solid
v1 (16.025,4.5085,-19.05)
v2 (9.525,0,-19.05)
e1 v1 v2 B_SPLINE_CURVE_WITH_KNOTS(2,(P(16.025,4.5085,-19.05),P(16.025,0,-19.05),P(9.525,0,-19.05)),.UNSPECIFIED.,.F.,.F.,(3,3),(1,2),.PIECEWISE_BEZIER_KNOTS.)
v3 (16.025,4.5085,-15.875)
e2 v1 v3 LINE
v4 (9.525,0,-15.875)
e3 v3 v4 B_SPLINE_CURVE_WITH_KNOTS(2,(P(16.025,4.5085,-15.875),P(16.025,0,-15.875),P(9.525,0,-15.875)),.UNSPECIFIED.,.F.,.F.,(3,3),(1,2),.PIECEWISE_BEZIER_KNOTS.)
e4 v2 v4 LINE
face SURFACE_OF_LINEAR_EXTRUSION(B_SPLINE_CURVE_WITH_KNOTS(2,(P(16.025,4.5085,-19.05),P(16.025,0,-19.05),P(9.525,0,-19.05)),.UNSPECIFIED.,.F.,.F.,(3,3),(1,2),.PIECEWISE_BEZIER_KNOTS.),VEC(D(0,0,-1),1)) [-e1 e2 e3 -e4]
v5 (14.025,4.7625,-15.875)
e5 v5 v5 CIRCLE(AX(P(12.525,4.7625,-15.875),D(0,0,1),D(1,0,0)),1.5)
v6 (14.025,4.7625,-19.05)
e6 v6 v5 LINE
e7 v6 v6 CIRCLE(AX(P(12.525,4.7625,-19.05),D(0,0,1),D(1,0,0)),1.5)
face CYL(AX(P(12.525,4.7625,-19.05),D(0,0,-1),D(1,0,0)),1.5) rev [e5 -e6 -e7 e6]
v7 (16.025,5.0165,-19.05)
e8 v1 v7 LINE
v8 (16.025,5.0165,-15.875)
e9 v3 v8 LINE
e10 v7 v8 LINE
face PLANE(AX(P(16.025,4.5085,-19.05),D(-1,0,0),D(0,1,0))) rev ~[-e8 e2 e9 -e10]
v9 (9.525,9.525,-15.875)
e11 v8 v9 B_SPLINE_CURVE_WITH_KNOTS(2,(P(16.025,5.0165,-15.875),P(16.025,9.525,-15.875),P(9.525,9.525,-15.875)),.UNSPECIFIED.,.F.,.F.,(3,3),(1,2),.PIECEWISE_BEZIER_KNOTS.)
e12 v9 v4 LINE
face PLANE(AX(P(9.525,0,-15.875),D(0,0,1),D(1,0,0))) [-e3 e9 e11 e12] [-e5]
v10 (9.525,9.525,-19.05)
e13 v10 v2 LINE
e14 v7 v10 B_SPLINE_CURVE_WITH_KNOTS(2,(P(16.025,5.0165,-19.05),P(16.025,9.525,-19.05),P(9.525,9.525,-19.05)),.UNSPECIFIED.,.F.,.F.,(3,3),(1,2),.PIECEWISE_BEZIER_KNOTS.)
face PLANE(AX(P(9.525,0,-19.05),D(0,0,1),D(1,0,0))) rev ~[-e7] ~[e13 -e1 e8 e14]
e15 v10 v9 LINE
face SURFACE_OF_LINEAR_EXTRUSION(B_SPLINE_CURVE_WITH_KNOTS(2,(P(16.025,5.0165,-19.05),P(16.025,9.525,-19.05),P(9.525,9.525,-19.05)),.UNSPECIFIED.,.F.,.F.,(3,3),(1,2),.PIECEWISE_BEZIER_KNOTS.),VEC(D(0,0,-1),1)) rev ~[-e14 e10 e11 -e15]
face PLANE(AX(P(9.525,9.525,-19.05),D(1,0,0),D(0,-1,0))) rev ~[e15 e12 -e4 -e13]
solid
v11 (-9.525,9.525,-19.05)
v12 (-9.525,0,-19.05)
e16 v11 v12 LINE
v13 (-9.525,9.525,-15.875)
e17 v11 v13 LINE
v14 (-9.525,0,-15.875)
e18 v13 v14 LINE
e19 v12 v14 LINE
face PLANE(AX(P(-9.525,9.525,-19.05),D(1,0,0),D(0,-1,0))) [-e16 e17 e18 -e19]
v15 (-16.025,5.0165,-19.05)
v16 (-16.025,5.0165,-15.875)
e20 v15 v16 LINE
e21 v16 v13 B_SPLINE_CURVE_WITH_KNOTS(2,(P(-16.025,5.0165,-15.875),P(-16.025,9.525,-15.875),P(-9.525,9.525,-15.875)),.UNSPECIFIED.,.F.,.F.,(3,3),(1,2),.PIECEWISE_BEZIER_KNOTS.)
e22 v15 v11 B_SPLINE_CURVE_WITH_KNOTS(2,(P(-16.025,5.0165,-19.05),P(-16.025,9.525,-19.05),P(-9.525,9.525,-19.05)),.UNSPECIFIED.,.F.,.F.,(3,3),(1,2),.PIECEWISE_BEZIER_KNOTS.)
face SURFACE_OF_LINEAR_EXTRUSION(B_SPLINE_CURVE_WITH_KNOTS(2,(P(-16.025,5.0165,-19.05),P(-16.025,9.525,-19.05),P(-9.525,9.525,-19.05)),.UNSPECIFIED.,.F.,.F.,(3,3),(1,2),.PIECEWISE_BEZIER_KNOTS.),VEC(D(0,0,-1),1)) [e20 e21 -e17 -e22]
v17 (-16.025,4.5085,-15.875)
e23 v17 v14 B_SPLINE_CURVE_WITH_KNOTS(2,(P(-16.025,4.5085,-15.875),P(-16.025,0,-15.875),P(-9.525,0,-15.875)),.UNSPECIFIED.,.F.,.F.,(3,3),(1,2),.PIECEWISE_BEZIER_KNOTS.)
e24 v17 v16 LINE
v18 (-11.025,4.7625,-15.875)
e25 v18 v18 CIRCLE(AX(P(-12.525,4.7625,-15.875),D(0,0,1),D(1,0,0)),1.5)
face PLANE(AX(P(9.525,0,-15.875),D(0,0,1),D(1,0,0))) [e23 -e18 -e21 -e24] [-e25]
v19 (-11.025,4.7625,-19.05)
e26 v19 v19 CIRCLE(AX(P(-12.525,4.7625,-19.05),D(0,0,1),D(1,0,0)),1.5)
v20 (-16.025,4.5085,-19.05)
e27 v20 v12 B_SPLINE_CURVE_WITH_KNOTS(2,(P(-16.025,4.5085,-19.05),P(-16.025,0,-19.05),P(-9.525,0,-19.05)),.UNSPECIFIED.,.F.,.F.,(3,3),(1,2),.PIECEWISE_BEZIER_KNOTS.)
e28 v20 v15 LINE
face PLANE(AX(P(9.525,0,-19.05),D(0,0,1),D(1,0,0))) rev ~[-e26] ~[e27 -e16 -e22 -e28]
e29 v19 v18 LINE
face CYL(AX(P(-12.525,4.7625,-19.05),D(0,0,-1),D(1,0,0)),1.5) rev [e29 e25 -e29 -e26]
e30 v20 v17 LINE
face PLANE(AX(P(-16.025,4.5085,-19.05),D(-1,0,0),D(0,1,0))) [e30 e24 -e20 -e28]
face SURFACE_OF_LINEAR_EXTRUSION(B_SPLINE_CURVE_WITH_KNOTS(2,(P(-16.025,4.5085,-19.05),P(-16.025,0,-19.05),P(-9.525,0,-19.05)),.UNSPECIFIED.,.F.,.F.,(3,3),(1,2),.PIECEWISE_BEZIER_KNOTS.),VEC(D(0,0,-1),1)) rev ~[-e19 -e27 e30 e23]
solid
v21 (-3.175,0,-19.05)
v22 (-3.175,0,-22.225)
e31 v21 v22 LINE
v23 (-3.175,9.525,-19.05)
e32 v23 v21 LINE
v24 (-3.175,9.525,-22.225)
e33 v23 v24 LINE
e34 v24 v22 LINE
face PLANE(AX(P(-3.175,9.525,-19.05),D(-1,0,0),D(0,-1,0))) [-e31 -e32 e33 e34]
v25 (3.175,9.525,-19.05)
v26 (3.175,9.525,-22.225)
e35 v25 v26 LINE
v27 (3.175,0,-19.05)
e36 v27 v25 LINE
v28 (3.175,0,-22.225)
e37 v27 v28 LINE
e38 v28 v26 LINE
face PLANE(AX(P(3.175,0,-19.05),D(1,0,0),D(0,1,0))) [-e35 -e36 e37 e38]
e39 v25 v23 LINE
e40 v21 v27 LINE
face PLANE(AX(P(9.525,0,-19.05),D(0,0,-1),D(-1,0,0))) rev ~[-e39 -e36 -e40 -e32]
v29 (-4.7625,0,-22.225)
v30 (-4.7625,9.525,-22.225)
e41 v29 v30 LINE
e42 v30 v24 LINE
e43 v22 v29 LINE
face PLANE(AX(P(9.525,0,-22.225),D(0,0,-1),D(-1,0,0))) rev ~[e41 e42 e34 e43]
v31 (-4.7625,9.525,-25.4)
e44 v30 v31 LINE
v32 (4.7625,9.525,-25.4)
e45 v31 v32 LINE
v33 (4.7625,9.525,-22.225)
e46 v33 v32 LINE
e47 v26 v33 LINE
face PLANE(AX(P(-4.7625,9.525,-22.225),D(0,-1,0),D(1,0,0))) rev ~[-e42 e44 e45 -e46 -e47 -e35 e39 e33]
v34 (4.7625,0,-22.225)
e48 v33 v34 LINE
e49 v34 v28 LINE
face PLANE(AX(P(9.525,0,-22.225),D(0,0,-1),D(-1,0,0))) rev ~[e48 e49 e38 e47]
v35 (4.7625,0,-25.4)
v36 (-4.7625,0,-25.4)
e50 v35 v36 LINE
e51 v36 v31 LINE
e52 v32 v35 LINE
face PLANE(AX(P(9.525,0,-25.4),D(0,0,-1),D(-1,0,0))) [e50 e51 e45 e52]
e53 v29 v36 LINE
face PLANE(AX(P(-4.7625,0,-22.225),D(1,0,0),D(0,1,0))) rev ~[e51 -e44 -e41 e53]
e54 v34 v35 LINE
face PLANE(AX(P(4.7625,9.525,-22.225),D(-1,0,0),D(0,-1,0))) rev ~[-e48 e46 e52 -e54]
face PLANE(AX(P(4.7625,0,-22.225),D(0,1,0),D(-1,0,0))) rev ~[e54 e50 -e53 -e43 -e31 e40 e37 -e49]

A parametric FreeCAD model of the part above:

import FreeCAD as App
import Part
import Sketcher
Q = App.Units.Quantity

doc = App.newDocument("Part")
body = doc.addObject("PartDesign::Body", "Body")
body.AllowCompound = True

# Sketch on XY plane
sketch1 = body.newObject("Sketcher::SketchObject", "Sketch")
sketch1.AttachmentSupport = (doc.getObject("XY_Plane"), [""])
sketch1.MapMode = "FlatFace"
sketch1.AttachmentOffset = App.Placement(App.Vector(0, 0, -0.75 * 25.4), App.Rotation())
sketch1.addGeometry([
    Part.LineSegment(App.Vector(3.175, 0, 0), App.Vector(-3.175, 0, 0)),
    Part.LineSegment(App.Vector(-3.175, 0, 0), App.Vector(-3.175, 9.525, 0)),
    Part.LineSegment(App.Vector(-3.175, 9.525, 0), App.Vector(3.175, 9.525, 0)),
    Part.LineSegment(App.Vector(3.175, 9.525, 0), App.Vector(3.175, 0, 0)),
], False)
sketch1.addConstraint([
    Sketcher.Constraint("Coincident", 0, 2, 1, 1),
    Sketcher.Constraint("Coincident", 1, 2, 2, 1),
    Sketcher.Constraint("Coincident", 2, 2, 3, 1),
    Sketcher.Constraint("Coincident", 3, 2, 0, 1),
    Sketcher.Constraint("Horizontal", 0),
    Sketcher.Constraint("Vertical", 1),
    Sketcher.Constraint("Horizontal", 2),
    Sketcher.Constraint("Vertical", 3),
    Sketcher.Constraint("Symmetric", 0, 2, 3, 2, -1, 1),
    Sketcher.Constraint("DistanceX", 0, 2, 0, 1, Q("0.25 in")),
    Sketcher.Constraint("DistanceY", 1, 1, 1, 2, Q("0.375 in")),
])
pad1 = body.newObject("PartDesign::Pad", "Pad")
pad1.Profile = sketch1
pad1.Length = Q("0.125 in")
pad1.Reversed = True

# Sketch on XY plane
sketch2 = body.newObject("Sketcher::SketchObject", "Sketch001")
sketch2.AttachmentSupport = (doc.getObject("XY_Plane"), [""])
sketch2.MapMode = "FlatFace"
sketch2.AttachmentOffset = App.Placement(App.Vector(0, 0, -0.875 * 25.4), App.Rotation())
sketch2.addGeometry([
    Part.LineSegment(App.Vector(4.7625, 9.525, 0), App.Vector(4.7625, 0, 0)),
    Part.LineSegment(App.Vector(4.7625, 0, 0), App.Vector(-4.7625, 0, 0)),
    Part.LineSegment(App.Vector(-4.7625, 0, 0), App.Vector(-4.7625, 9.525, 0)),
    Part.LineSegment(App.Vector(-4.7625, 9.525, 0), App.Vector(4.7625, 9.525, 0)),
], False)
sketch2.addConstraint([
    Sketcher.Constraint("Coincident", 0, 2, 1, 1),
    Sketcher.Constraint("Coincident", 1, 2, 2, 1),
    Sketcher.Constraint("Coincident", 2, 2, 3, 1),
    Sketcher.Constraint("Coincident", 3, 2, 0, 1),
    Sketcher.Constraint("Vertical", 0),
    Sketcher.Constraint("Horizontal", 1),
    Sketcher.Constraint("Vertical", 2),
    Sketcher.Constraint("Horizontal", 3),
    Sketcher.Constraint("Symmetric", 0, 2, 1, 2, -1, 1),
    Sketcher.Constraint("Equal", 3, 0),
    Sketcher.Constraint("DistanceX", 1, 2, 1, 1, Q("0.375 in")),
])
pad2 = body.newObject("PartDesign::Pad", "Pad001")
pad2.Profile = sketch2
pad2.Length = Q("0.125 in")
pad2.Reversed = True

# Sketch on XY plane
sketch3 = body.newObject("Sketcher::SketchObject", "Sketch002")
sketch3.AttachmentSupport = (doc.getObject("XY_Plane"), [""])
sketch3.MapMode = "FlatFace"
sketch3.AttachmentOffset = App.Placement(App.Vector(0, 0, -0.75 * 25.4), App.Rotation())
sketch3.addGeometry([
    Part.BSplineCurve([App.Vector(16.025, 4.5085, 0), App.Vector(16.025, 0, 0), App.Vector(9.525, 0, 0)], [3, 3], [1, 2], False, 2, [1, 1, 1], False),  # 0
    Part.LineSegment(App.Vector(16.025, 4.5085, 0), App.Vector(16.025, 5.0165, 0)),  # 1
    Part.BSplineCurve([App.Vector(16.025, 5.0165, 0), App.Vector(16.025, 9.525, 0), App.Vector(9.525, 9.525, 0)], [3, 3], [1, 2], False, 2, [1, 1, 1], False),  # 2
    Part.LineSegment(App.Vector(9.525, 9.525, 0), App.Vector(9.525, 0, 0)),  # 3
    Part.Circle(App.Vector(12.525, 4.7625, 0), App.Vector(0, 0, 1), 1.5),  # 4
    Part.LineSegment(App.Vector(-16.025, 5.0165, 0), App.Vector(-16.025, 4.5085, 0)),  # 5
    Part.BSplineCurve([App.Vector(-16.025, 4.5085, 0), App.Vector(-16.025, 0, 0), App.Vector(-9.525, 0, 0)], [3, 3], [1, 2], False, 2, [1, 1, 1], False),  # 6
    Part.LineSegment(App.Vector(-9.525, 0, 0), App.Vector(-9.525, 9.525, 0)),  # 7
    Part.BSplineCurve([App.Vector(-16.025, 5.0165, 0), App.Vector(-16.025, 9.525, 0), App.Vector(-9.525, 9.525, 0)], [3, 3], [1, 2], False, 2, [1, 1, 1], False),  # 8
    Part.Circle(App.Vector(-12.525, 4.7625, 0), App.Vector(0, 0, 1), 1.5),  # 9
], False)
sketch3.addConstraint([
    Sketcher.Constraint("Block", 0),
    Sketcher.Constraint("Block", 2),
    Sketcher.Constraint("Block", 6),
    Sketcher.Constraint("Block", 8),
    Sketcher.Constraint("Coincident", 0, 1, 1, 1),
    Sketcher.Constraint("Coincident", 1, 2, 2, 1),
    Sketcher.Constraint("Coincident", 2, 2, 3, 1),
    Sketcher.Constraint("Coincident", 3, 2, 0, 2),
    Sketcher.Constraint("Coincident", 5, 2, 6, 1),
    Sketcher.Constraint("Coincident", 6, 2, 7, 1),
    Sketcher.Constraint("Coincident", 7, 2, 8, 2),
    Sketcher.Constraint("Coincident", 8, 1, 5, 1),
    Sketcher.Constraint("Equal", 4, 9),
    Sketcher.Constraint("Symmetric", 4, 3, 9, 3, -2),
    Sketcher.Constraint("Diameter", 4, Q("0.1181 in")),
    Sketcher.Constraint("DistanceX", 3, 2, 4, 3, Q("0.1181 in")),
    Sketcher.Constraint("DistanceY", 4, 3, 1, 2, Q("0.01 in")),
])
pad3 = body.newObject("PartDesign::Pad", "Pad002")
pad3.Profile = sketch3
pad3.Length = Q("0.125 in")

doc.recompute()
